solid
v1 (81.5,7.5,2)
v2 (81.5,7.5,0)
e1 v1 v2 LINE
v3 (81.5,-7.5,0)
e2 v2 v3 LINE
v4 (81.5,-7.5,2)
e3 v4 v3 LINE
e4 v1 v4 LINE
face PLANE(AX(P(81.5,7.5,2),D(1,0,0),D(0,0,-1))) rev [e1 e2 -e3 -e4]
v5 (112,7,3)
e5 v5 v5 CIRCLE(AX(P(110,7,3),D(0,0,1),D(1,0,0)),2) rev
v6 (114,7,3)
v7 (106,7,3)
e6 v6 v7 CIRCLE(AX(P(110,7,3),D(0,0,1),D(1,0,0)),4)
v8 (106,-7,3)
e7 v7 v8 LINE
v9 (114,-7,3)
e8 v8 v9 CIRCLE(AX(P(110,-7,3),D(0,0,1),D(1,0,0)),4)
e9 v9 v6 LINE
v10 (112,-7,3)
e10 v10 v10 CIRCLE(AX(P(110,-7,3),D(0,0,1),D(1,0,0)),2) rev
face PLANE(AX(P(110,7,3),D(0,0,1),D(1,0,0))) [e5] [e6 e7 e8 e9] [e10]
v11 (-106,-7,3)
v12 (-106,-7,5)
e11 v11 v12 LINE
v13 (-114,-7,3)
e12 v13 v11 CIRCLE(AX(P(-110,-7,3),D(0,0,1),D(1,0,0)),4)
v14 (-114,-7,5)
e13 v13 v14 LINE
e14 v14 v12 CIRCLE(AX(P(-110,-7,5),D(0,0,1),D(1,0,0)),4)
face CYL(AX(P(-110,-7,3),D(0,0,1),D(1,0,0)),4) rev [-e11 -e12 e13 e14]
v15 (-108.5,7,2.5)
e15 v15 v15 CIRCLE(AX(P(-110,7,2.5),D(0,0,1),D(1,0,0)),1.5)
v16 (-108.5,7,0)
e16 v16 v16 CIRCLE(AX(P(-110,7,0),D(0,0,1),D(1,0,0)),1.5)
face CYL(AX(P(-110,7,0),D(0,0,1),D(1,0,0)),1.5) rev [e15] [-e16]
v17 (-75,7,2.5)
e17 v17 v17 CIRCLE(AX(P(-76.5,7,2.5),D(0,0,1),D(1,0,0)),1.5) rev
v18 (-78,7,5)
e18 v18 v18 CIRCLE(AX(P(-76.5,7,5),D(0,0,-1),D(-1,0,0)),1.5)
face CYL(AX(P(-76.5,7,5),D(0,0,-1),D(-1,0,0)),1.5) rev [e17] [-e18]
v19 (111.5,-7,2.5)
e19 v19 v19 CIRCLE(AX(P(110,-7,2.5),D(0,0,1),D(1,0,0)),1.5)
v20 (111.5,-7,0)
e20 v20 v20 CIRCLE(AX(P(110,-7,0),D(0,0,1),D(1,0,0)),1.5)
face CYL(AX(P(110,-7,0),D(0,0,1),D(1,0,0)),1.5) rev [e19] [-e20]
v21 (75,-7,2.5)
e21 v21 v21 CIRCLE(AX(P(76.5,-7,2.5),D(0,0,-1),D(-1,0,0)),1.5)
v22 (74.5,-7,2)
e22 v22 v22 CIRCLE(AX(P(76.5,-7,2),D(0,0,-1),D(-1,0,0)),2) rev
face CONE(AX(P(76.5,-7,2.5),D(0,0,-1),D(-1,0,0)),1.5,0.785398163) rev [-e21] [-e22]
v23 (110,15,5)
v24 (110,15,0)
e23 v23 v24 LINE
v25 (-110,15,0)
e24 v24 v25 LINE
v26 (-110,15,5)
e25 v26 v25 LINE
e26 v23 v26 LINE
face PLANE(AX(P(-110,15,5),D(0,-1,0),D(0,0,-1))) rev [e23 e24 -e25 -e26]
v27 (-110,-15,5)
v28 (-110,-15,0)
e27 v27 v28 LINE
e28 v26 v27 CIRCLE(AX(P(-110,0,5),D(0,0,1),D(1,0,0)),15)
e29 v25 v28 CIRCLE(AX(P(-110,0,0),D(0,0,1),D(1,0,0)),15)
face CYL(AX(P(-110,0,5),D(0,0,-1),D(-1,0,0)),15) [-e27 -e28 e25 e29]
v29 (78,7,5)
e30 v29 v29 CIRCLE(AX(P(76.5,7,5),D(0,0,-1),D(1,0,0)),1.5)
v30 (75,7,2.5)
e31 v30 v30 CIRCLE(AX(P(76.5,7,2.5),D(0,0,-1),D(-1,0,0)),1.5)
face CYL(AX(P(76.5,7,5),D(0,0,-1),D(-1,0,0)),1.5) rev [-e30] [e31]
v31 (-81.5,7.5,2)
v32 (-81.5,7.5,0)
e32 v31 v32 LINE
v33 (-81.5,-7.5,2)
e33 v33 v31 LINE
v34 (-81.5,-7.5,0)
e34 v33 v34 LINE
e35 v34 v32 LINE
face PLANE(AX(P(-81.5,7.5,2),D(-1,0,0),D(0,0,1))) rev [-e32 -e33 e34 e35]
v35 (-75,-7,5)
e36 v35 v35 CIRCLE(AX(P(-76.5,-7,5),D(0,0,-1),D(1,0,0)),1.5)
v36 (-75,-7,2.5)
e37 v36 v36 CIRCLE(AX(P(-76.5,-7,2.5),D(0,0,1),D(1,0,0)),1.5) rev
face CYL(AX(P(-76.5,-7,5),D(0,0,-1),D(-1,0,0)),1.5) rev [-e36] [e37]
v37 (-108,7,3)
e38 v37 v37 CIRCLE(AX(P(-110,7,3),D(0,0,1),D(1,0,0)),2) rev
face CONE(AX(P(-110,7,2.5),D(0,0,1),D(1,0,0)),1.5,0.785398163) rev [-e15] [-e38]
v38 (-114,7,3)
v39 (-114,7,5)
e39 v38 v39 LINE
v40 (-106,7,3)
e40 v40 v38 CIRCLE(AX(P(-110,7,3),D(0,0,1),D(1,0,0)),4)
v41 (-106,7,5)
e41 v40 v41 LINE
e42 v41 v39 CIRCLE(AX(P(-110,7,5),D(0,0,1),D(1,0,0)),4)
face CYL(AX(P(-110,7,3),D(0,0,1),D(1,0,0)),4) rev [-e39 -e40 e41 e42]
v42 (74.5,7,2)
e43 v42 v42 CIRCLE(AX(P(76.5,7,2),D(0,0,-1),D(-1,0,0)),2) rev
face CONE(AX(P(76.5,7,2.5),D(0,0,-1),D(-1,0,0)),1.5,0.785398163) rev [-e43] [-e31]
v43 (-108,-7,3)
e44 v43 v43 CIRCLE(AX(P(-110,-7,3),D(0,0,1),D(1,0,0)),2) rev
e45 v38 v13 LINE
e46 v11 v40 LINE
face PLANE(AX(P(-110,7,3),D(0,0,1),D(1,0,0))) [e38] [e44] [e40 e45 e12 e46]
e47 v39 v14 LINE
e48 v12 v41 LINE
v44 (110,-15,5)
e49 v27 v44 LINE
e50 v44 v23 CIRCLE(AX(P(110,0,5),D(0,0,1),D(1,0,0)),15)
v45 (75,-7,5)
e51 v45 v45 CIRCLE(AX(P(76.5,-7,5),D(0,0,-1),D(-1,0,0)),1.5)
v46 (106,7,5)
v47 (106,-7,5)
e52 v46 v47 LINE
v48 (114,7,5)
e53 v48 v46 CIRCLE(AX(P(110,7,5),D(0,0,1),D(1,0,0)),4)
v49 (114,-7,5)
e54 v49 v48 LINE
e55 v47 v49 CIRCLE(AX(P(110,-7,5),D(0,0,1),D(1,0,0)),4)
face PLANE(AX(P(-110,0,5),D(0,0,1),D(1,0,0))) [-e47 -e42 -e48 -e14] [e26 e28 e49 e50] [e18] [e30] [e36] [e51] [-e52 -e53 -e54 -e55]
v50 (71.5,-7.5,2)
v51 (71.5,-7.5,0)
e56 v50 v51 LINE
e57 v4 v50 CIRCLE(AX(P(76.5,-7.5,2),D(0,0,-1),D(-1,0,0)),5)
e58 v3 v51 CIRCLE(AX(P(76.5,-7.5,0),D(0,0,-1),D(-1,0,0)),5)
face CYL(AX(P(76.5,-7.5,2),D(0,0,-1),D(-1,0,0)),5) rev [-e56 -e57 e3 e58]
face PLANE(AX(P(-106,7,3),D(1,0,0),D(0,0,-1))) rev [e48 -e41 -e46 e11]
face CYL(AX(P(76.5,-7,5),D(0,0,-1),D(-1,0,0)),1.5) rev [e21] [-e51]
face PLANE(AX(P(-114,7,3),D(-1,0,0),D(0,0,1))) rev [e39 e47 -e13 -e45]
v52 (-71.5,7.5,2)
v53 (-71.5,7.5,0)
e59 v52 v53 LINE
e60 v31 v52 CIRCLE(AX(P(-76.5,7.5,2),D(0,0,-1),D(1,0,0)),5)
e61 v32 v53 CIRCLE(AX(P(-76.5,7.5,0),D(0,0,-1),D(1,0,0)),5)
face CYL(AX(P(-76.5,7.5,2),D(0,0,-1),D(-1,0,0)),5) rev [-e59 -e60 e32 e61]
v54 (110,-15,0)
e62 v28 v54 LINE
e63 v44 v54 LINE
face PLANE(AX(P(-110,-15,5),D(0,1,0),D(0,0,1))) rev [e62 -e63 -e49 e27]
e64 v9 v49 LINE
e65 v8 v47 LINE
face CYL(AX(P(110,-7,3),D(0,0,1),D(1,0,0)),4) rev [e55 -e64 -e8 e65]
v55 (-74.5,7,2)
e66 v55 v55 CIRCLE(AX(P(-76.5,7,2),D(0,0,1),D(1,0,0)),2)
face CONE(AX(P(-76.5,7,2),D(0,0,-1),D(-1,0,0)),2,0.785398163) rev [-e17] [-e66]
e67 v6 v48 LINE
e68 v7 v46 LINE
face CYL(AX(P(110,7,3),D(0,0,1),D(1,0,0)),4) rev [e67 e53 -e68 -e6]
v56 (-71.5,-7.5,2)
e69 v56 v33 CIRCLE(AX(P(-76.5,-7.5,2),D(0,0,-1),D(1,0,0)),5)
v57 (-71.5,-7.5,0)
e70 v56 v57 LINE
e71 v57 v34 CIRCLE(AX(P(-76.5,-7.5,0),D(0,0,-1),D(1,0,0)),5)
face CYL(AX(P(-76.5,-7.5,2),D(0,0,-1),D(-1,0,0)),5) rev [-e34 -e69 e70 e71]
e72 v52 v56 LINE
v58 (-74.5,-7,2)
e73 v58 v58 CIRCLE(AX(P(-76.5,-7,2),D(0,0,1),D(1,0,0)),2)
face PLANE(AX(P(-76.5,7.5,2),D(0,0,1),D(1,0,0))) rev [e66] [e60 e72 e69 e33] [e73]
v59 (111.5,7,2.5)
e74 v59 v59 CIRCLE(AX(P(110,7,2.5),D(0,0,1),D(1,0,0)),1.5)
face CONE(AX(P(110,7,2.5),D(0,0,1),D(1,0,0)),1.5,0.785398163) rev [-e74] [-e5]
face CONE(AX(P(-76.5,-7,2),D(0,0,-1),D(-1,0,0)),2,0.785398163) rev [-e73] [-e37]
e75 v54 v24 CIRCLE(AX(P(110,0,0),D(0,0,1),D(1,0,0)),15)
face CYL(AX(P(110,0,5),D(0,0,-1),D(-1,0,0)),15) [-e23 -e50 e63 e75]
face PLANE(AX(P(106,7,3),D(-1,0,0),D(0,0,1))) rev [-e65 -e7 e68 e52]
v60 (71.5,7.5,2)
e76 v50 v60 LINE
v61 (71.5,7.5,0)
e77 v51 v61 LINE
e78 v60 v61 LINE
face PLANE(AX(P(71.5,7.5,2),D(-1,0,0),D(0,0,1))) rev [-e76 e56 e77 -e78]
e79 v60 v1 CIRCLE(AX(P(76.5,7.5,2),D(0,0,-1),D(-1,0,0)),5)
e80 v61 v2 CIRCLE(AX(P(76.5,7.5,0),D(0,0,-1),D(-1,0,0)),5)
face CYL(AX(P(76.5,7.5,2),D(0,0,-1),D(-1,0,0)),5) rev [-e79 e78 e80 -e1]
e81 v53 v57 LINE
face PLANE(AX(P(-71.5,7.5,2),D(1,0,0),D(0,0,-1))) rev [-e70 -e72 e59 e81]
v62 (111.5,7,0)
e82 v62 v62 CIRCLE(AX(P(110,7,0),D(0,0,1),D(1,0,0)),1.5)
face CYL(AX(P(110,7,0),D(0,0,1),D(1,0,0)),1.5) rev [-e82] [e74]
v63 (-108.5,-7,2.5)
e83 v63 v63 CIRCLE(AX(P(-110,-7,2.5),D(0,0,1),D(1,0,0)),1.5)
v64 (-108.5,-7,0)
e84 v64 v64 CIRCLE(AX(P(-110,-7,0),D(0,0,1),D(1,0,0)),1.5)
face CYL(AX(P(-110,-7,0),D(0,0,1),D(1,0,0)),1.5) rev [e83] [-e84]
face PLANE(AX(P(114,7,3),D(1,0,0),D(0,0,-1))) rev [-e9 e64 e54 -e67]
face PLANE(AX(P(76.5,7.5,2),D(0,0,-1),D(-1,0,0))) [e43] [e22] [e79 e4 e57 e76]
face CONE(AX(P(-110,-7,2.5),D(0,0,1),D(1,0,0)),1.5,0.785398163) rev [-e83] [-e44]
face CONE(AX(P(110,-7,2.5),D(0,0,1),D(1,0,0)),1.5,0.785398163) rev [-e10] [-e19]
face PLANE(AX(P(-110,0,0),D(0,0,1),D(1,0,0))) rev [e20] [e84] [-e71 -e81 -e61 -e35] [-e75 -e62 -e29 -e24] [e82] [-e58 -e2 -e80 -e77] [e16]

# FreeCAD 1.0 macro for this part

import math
import FreeCAD as App
import Part
import Sketcher


def edges_at(feature, points):
    """Names of the edges that pass closest to the given points."""
    edges = feature.Shape.Edges
    near = lambda p: min(range(len(edges)), key=lambda i: edges[i].distToShape(Part.Vertex(*p))[0])
    return sorted({f"Edge{near(p) + 1}" for p in points})

doc = App.newDocument("Part")
body = doc.addObject("PartDesign::Body", "Body")

sketch1 = doc.addObject("Sketcher::SketchObject", "Sketch")
body.addObject(sketch1)
sketch1.AttachmentSupport = (doc.XY_Plane, [""])
sketch1.MapMode = "FlatFace"
sketch1.addGeometry(Part.LineSegment(App.Vector(110, 15, 0), App.Vector(-110, 15, 0)), False)
sketch1.addGeometry(Part.ArcOfCircle(Part.Circle(App.Vector(-110, 0, 0), App.Vector(0, 0, 1), 15), math.radians(90), math.radians(270)), False)
sketch1.addGeometry(Part.LineSegment(App.Vector(-110, -15, 0), App.Vector(110, -15, 0)), False)
sketch1.addGeometry(Part.ArcOfCircle(Part.Circle(App.Vector(110, 0, 0), App.Vector(0, 0, 1), 15), math.radians(-90), math.radians(90)), False)
sketch1.addConstraint(Sketcher.Constraint("Tangent", 0, 2, 1, 1))
sketch1.addConstraint(Sketcher.Constraint("Tangent", 1, 2, 2, 1))
sketch1.addConstraint(Sketcher.Constraint("Tangent", 2, 2, 3, 1))
sketch1.addConstraint(Sketcher.Constraint("Tangent", 3, 2, 0, 1))
sketch1.addConstraint(Sketcher.Constraint("Horizontal", 0))
sketch1.addConstraint(Sketcher.Constraint("Horizontal", 2))
sketch1.addConstraint(Sketcher.Constraint("Symmetric", 1, 3, 3, 3, -1, 1))
sketch1.addConstraint(Sketcher.Constraint("Radius", 1, 15.0))
sketch1.addConstraint(Sketcher.Constraint("DistanceX", 0, 2, 0, 1, 220.0))
pad1 = doc.addObject("PartDesign::Pad", "Pad")
body.addObject(pad1)
pad1.Profile = sketch1
pad1.Length = 5

sketch2 = doc.addObject("Sketcher::SketchObject", "Sketch001")
body.addObject(sketch2)
sketch2.AttachmentSupport = (doc.XY_Plane, [""])
sketch2.MapMode = "FlatFace"
sketch2.AttachmentOffset = App.Placement(App.Vector(0, 0, 5), App.Rotation())
sketch2.addGeometry(Part.LineSegment(App.Vector(114, -7, 0), App.Vector(114, 7, 0)), False)
sketch2.addGeometry(Part.ArcOfCircle(Part.Circle(App.Vector(110, 7, 0), App.Vector(0, 0, 1), 4), math.radians(0), math.radians(180)), False)
sketch2.addGeometry(Part.LineSegment(App.Vector(106, 7, 0), App.Vector(106, -7, 0)), False)
sketch2.addGeometry(Part.ArcOfCircle(Part.Circle(App.Vector(110, -7, 0), App.Vector(0, 0, 1), 4), math.radians(180), math.radians(360)), False)
sketch2.addGeometry(Part.LineSegment(App.Vector(-106, -7, 0), App.Vector(-106, 7, 0)), False)
sketch2.addGeometry(Part.ArcOfCircle(Part.Circle(App.Vector(-110, 7, 0), App.Vector(0, 0, 1), 4), math.radians(0), math.radians(180)), False)
sketch2.addGeometry(Part.LineSegment(App.Vector(-114, 7, 0), App.Vector(-114, -7, 0)), False)
sketch2.addGeometry(Part.ArcOfCircle(Part.Circle(App.Vector(-110, -7, 0), App.Vector(0, 0, 1), 4), math.radians(180), math.radians(360)), False)
sketch2.addConstraint(Sketcher.Constraint("Tangent", 0, 2, 1, 1))
sketch2.addConstraint(Sketcher.Constraint("Tangent", 1, 2, 2, 1))
sketch2.addConstraint(Sketcher.Constraint("Tangent", 2, 2, 3, 1))
sketch2.addConstraint(Sketcher.Constraint("Tangent", 3, 2, 0, 1))
sketch2.addConstraint(Sketcher.Constraint("Tangent", 4, 2, 5, 1))
sketch2.addConstraint(Sketcher.Constraint("Tangent", 5, 2, 6, 1))
sketch2.addConstraint(Sketcher.Constraint("Tangent", 6, 2, 7, 1))
sketch2.addConstraint(Sketcher.Constraint("Tangent", 7, 2, 4, 1))
sketch2.addConstraint(Sketcher.Constraint("Vertical", 0))
sketch2.addConstraint(Sketcher.Constraint("Vertical", 2))
sketch2.addConstraint(Sketcher.Constraint("Vertical", 4))
sketch2.addConstraint(Sketcher.Constraint("Vertical", 6))
sketch2.addConstraint(Sketcher.Constraint("Equal", 3, 5))
sketch2.addConstraint(Sketcher.Constraint("Symmetric", 3, 3, 5, 3, -1, 1))
sketch2.addConstraint(Sketcher.Constraint("Horizontal", 1, 3, 5, 3))
sketch2.addConstraint(Sketcher.Constraint("Horizontal", 3, 3, 7, 3))
sketch2.addConstraint(Sketcher.Constraint("Radius", 1, 4.0))
sketch2.addConstraint(Sketcher.Constraint("DistanceY", 0, 1, 0, 2, 14.0))
sketch2.addConstraint(Sketcher.Constraint("DistanceX", -1, 1, 1, 3, 110.0))
pocket1 = doc.addObject("PartDesign::Pocket", "Pocket")
body.addObject(pocket1)
pocket1.Profile = sketch2
pocket1.Length = 2

sketch3 = doc.addObject("Sketcher::SketchObject", "Sketch002")
body.addObject(sketch3)
sketch3.AttachmentSupport = (doc.XY_Plane, [""])
sketch3.MapMode = "FlatFace"
sketch3.addGeometry(Part.LineSegment(App.Vector(72, -8, 0), App.Vector(72, 8, 0)), False)
sketch3.addGeometry(Part.ArcOfCircle(Part.Circle(App.Vector(76, 8, 0), App.Vector(0, 0, 1), 5), math.radians(0), math.radians(180)), False)
sketch3.addGeometry(Part.LineSegment(App.Vector(82, 8, 0), App.Vector(82, -8, 0)), False)
sketch3.addGeometry(Part.ArcOfCircle(Part.Circle(App.Vector(76, -8, 0), App.Vector(0, 0, 1), 5), math.radians(180), math.radians(360)), False)
sketch3.addGeometry(Part.LineSegment(App.Vector(-72, 8, 0), App.Vector(-72, -8, 0)), False)
sketch3.addGeometry(Part.ArcOfCircle(Part.Circle(App.Vector(-76, -8, 0), App.Vector(0, 0, 1), 5), math.radians(180), math.radians(360)), False)
sketch3.addGeometry(Part.LineSegment(App.Vector(-82, -8, 0), App.Vector(-82, 8, 0)), False)
sketch3.addGeometry(Part.ArcOfCircle(Part.Circle(App.Vector(-76, 8, 0), App.Vector(0, 0, 1), 5), math.radians(0), math.radians(180)), False)
sketch3.addConstraint(Sketcher.Constraint("Tangent", 0, 2, 1, 2))
sketch3.addConstraint(Sketcher.Constraint("Tangent", 1, 1, 2, 1))
sketch3.addConstraint(Sketcher.Constraint("Tangent", 2, 2, 3, 2))
sketch3.addConstraint(Sketcher.Constraint("Tangent", 3, 1, 0, 1))
sketch3.addConstraint(Sketcher.Constraint("Tangent", 4, 2, 5, 2))
sketch3.addConstraint(Sketcher.Constraint("Tangent", 5, 1, 6, 1))
sketch3.addConstraint(Sketcher.Constraint("Tangent", 6, 2, 7, 2))
sketch3.addConstraint(Sketcher.Constraint("Tangent", 7, 1, 4, 1))
sketch3.addConstraint(Sketcher.Constraint("Vertical", 0))
sketch3.addConstraint(Sketcher.Constraint("Vertical", 2))
sketch3.addConstraint(Sketcher.Constraint("Vertical", 4))
sketch3.addConstraint(Sketcher.Constraint("Vertical", 6))
sketch3.addConstraint(Sketcher.Constraint("Equal", 3, 5))
sketch3.addConstraint(Sketcher.Constraint("Symmetric", 1, 3, 5, 3, -1, 1))
sketch3.addConstraint(Sketcher.Constraint("Horizontal", 3, 3, 5, 3))
sketch3.addConstraint(Sketcher.Constraint("Horizontal", 1, 3, 7, 3))
sketch3.addConstraint(Sketcher.Constraint("Radius", 1, 5.0))
sketch3.addConstraint(Sketcher.Constraint("DistanceY", 0, 1, 0, 2, 15.0))
sketch3.addConstraint(Sketcher.Constraint("DistanceX", 5, 3, 3, 3, 153.0))
pocket2 = doc.addObject("PartDesign::Pocket", "Pocket001")
body.addObject(pocket2)
pocket2.Profile = sketch3
pocket2.Length = 2
pocket2.Reversed = True

sketch4 = doc.addObject("Sketcher::SketchObject", "Sketch003")
body.addObject(sketch4)
sketch4.AttachmentSupport = (doc.XY_Plane, [""])
sketch4.MapMode = "FlatFace"
sketch4.AttachmentOffset = App.Placement(App.Vector(0, 0, 2), App.Rotation())
sketch4.addGeometry(Part.Circle(App.Vector(-76.5, 7, 0), App.Vector(0, 0, 1), 1.5), False)
sketch4.addGeometry(Part.Circle(App.Vector(-76.5, -7, 0), App.Vector(0, 0, 1), 1.5), False)
sketch4.addGeometry(Part.Circle(App.Vector(76.5, 7, 0), App.Vector(0, 0, 1), 1.5), False)
sketch4.addGeometry(Part.Circle(App.Vector(76.5, -7, 0), App.Vector(0, 0, 1), 1.5), False)
sketch4.addConstraint(Sketcher.Constraint("Equal", 0, 1))
sketch4.addConstraint(Sketcher.Constraint("Equal", 1, 2))
sketch4.addConstraint(Sketcher.Constraint("Equal", 2, 3))
sketch4.addConstraint(Sketcher.Constraint("Symmetric", 1, 3, 2, 3, -1, 1))
sketch4.addConstraint(Sketcher.Constraint("Symmetric", 0, 3, 3, 3, -1, 1))
sketch4.addConstraint(Sketcher.Constraint("Symmetric", 0, 3, 2, 3, -2))
sketch4.addConstraint(Sketcher.Constraint("Diameter", 0, 3.0))
sketch4.addConstraint(Sketcher.Constraint("DistanceY", -1, 1, 0, 3, 7.0))
sketch4.addConstraint(Sketcher.Constraint("DistanceX", 0, 3, 2, 3, 153.0))
pocket3 = doc.addObject("PartDesign::Pocket", "Pocket002")
body.addObject(pocket3)
pocket3.Profile = sketch4
pocket3.Type = "ThroughAll"
pocket3.Midplane = True

sketch5 = doc.addObject("Sketcher::SketchObject", "Sketch004")
body.addObject(sketch5)
sketch5.AttachmentSupport = (doc.XY_Plane, [""])
sketch5.MapMode = "FlatFace"
sketch5.AttachmentOffset = App.Placement(App.Vector(0, 0, 3), App.Rotation())
sketch5.addGeometry(Part.Circle(App.Vector(110, 7, 0), App.Vector(0, 0, 1), 1.5), False)
sketch5.addGeometry(Part.Circle(App.Vector(110, -7, 0), App.Vector(0, 0, 1), 1.5), False)
sketch5.addGeometry(Part.Circle(App.Vector(-110, 7, 0), App.Vector(0, 0, 1), 1.5), False)
sketch5.addGeometry(Part.Circle(App.Vector(-110, -7, 0), App.Vector(0, 0, 1), 1.5), False)
sketch5.addConstraint(Sketcher.Constraint("Equal", 0, 1))
sketch5.addConstraint(Sketcher.Constraint("Equal", 1, 2))
sketch5.addConstraint(Sketcher.Constraint("Equal", 2, 3))
sketch5.addConstraint(Sketcher.Constraint("Symmetric", 1, 3, 2, 3, -1, 1))
sketch5.addConstraint(Sketcher.Constraint("Symmetric", 0, 3, 3, 3, -1, 1))
sketch5.addConstraint(Sketcher.Constraint("Symmetric", 0, 3, 2, 3, -2))
sketch5.addConstraint(Sketcher.Constraint("Diameter", 0, 3.0))
sketch5.addConstraint(Sketcher.Constraint("DistanceX", -1, 1, 0, 3, 110.0))
sketch5.addConstraint(Sketcher.Constraint("DistanceY", -1, 1, 0, 3, 7.0))
pocket4 = doc.addObject("PartDesign::Pocket", "Pocket003")
body.addObject(pocket4)
pocket4.Profile = sketch5
pocket4.Type = "ThroughAll"
doc.recompute()

chamfer = doc.addObject("PartDesign::Chamfer", "Chamfer")
body.addObject(chamfer)
chamfer.Base = (pocket4, edges_at(pocket4, [
    (108.5, -7, 3),
    (-111.5, 7, 3),
    (-111.5, -7, 3),
    (108.5, 7, 3),
]))
chamfer.Size = 0.5
doc.recompute()

chamfer2 = doc.addObject("PartDesign::Chamfer", "Chamfer001")
body.addObject(chamfer2)
chamfer2.Base = (chamfer, edges_at(chamfer, [
    (-78, -7, 2),
    (78, 7, 2),
    (78, -7, 2),
    (-75, 7, 2),
]))
chamfer2.Size = 0.5

doc.recompute()
